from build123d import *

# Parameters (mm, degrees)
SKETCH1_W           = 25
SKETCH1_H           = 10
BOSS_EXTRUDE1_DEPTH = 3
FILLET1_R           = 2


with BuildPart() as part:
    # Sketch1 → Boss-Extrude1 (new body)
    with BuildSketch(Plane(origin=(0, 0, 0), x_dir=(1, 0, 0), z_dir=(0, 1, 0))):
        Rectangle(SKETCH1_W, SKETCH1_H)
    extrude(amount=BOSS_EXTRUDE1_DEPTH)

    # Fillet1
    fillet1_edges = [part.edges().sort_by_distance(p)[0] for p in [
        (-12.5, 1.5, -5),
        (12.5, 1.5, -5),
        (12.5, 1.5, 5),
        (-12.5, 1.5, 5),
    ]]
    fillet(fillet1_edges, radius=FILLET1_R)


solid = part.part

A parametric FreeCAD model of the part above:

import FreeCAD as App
import Part
import Sketcher

V = App.Vector


def edges_at(feature, points):
    """Names of the edges that pass closest to the given points."""
    edges = feature.Shape.Edges
    near = lambda p: min(range(len(edges)), key=lambda i: edges[i].distToShape(Part.Vertex(*p))[0])
    return sorted({f"Edge{near(p) + 1}" for p in points})

doc = App.newDocument("Part")
body = doc.addObject("PartDesign::Body", "Body")

sketch1 = body.newObject("Sketcher::SketchObject", "Sketch")
sketch1.AttachmentSupport = (doc.getObject("XZ_Plane"), [""])
sketch1.MapMode = "FlatFace"
sketch1.addGeometry([
    Part.LineSegment(V(-12, -5, 0), V(-12, 5, 0)),
    Part.LineSegment(V(-12, 5, 0), V(12, 5, 0)),
    Part.LineSegment(V(12, 5, 0), V(12, -5, 0)),
    Part.LineSegment(V(12, -5, 0), V(-12, -5, 0)),
], False)
sketch1.addConstraint([
    Sketcher.Constraint("Coincident", 0, 2, 1, 1),
    Sketcher.Constraint("Coincident", 1, 2, 2, 1),
    Sketcher.Constraint("Coincident", 2, 2, 3, 1),
    Sketcher.Constraint("Coincident", 3, 2, 0, 1),
    Sketcher.Constraint("Vertical", 0),
    Sketcher.Constraint("Horizontal", 1),
    Sketcher.Constraint("Vertical", 2),
    Sketcher.Constraint("Horizontal", 3),
    Sketcher.Constraint("Symmetric", 0, 2, 2, 2, -1, 1),
    Sketcher.Constraint("DistanceX", 1, 1, 1, 2, 25.0),
    Sketcher.Constraint("DistanceY", 0, 1, 0, 2, 10.0),
])
pad1 = body.newObject("PartDesign::Pad", "Pad")
pad1.Profile = sketch1
pad1.Length = 3
pad1.Reversed = True
doc.recompute()

fillet = body.newObject("PartDesign::Fillet", "Fillet")
fillet.Base = (pad1, edges_at(pad1, [
    (-12.5, 1.5, -5),
    (12.5, 1.5, -5),
    (12.5, 1.5, 5),
    (-12.5, 1.5, 5),
]))
fillet.Radius = 2

doc.recompute()
